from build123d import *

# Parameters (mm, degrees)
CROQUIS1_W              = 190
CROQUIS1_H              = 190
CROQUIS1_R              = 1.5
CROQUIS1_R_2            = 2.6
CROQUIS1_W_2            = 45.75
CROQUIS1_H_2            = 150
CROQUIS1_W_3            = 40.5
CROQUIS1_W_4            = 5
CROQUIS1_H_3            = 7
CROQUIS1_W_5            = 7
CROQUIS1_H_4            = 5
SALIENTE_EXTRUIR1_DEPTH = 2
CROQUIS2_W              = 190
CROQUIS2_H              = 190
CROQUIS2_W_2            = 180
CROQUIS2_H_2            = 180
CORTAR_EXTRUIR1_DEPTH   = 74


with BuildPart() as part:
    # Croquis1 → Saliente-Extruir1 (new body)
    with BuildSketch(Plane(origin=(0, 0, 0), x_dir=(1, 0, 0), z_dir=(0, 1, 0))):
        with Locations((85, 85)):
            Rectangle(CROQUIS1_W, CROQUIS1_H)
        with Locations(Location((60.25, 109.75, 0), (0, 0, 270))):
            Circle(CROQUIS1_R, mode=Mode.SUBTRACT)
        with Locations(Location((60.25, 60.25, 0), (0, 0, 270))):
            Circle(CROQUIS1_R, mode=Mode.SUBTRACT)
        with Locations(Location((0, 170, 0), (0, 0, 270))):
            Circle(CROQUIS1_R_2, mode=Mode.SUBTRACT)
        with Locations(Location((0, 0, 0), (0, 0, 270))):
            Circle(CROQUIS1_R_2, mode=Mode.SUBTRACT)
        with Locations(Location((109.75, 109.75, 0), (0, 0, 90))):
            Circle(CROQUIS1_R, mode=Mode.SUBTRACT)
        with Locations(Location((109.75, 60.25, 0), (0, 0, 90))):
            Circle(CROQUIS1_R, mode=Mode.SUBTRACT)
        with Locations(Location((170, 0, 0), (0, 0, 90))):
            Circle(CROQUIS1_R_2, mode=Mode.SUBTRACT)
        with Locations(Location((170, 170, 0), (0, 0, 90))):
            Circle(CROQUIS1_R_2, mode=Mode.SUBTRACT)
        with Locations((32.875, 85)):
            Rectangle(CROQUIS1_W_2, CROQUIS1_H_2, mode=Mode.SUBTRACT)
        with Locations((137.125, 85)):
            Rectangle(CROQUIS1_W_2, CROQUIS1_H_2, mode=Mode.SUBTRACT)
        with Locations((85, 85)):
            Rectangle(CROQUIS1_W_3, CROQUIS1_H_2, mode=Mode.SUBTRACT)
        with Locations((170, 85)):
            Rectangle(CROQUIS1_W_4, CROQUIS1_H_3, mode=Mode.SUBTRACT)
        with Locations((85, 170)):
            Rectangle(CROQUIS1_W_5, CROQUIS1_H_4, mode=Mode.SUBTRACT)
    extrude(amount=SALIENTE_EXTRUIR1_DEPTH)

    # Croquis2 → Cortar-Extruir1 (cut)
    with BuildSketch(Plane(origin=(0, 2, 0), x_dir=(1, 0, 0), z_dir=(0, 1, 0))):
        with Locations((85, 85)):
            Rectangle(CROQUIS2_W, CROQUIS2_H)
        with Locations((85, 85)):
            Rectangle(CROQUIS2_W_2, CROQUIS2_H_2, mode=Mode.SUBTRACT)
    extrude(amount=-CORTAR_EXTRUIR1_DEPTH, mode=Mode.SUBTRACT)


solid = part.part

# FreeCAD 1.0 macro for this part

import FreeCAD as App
import Part
import Sketcher


def add_polygon(sketch, points):
    """Adds a closed chain of lines whose ends are joined by coincident constraints."""
    first, n = sketch.GeometryCount, len(points)
    for a, b in zip(points, points[1:] + points[:1]):
        sketch.addGeometry(Part.LineSegment(App.Vector(*a, 0), App.Vector(*b, 0)), False)
    for i in range(n):
        sketch.addConstraint(Sketcher.Constraint("Coincident", first + i, 2, first + (i + 1) % n, 1))

doc = App.newDocument("Part")
body = doc.addObject("PartDesign::Body", "Body")

# Sketch on XZ plane
sketch1 = body.newObject("Sketcher::SketchObject", "Sketch")
sketch1.AttachmentSupport = (doc.getObject("XZ_Plane"), [""])
sketch1.MapMode = "FlatFace"
add_polygon(sketch1, [(-10, -180), (-10, 10), (180, 10), (180, -180)])  # lines 0-3
sketch1.addGeometry(Part.Circle(App.Vector(0, 0, 0), App.Vector(0, 0, 1), 2.6), False)  # 4
sketch1.addGeometry(Part.Circle(App.Vector(60.2, -60.2, 0), App.Vector(0, 0, 1), 1.5), False)  # 5
sketch1.addGeometry(Part.Circle(App.Vector(170, 0, 0), App.Vector(0, 0, 1), 2.6), False)  # 6
sketch1.addGeometry(Part.Circle(App.Vector(109.8, -60.2, 0), App.Vector(0, 0, 1), 1.5), False)  # 7
add_polygon(sketch1, [(55.8, -10), (10, -10), (10, -160), (55.8, -160)])  # lines 8-11
sketch1.addGeometry(Part.Circle(App.Vector(60.2, -109.8, 0), App.Vector(0, 0, 1), 1.5), False)  # 12
sketch1.addGeometry(Part.Circle(App.Vector(0, -170, 0), App.Vector(0, 0, 1), 2.6), False)  # 13
add_polygon(sketch1, [(105.2, -10), (64.8, -10), (64.8, -160), (105.2, -160)])  # lines 14-17
sketch1.addGeometry(Part.Circle(App.Vector(109.8, -109.8, 0), App.Vector(0, 0, 1), 1.5), False)  # 18
add_polygon(sketch1, [(160, -10), (114.2, -10), (114.2, -160), (160, -160)])  # lines 19-22
add_polygon(sketch1, [(172.5, -81.5), (167.5, -81.5), (167.5, -88.5), (172.5, -88.5)])  # lines 23-26
add_polygon(sketch1, [(88.5, -167.5), (81.5, -167.5), (81.5, -172.5), (88.5, -172.5)])  # lines 27-30
sketch1.addGeometry(Part.Circle(App.Vector(170, -170, 0), App.Vector(0, 0, 1), 2.6), False)  # 31
sketch1.addConstraint([
    Sketcher.Constraint("Vertical", 0),
    Sketcher.Constraint("Horizontal", 1),
    Sketcher.Constraint("Vertical", 2),
    Sketcher.Constraint("Horizontal", 3),
    Sketcher.Constraint("Horizontal", 8),
    Sketcher.Constraint("Vertical", 9),
    Sketcher.Constraint("Horizontal", 10),
    Sketcher.Constraint("Vertical", 11),
    Sketcher.Constraint("Horizontal", 14),
    Sketcher.Constraint("Vertical", 15),
    Sketcher.Constraint("Horizontal", 16),
    Sketcher.Constraint("Vertical", 17),
    Sketcher.Constraint("Horizontal", 19),
    Sketcher.Constraint("Vertical", 20),
    Sketcher.Constraint("Horizontal", 21),
    Sketcher.Constraint("Vertical", 22),
    Sketcher.Constraint("Horizontal", 23),
    Sketcher.Constraint("Vertical", 24),
    Sketcher.Constraint("Horizontal", 25),
    Sketcher.Constraint("Vertical", 26),
    Sketcher.Constraint("Horizontal", 27),
    Sketcher.Constraint("Vertical", 28),
    Sketcher.Constraint("Horizontal", 29),
    Sketcher.Constraint("Vertical", 30),
    Sketcher.Constraint("Coincident", 4, 3, -1, 1),
    Sketcher.Constraint("Equal", 4, 6),
    Sketcher.Constraint("Equal", 5, 7),
    Sketcher.Constraint("Equal", 7, 12),
    Sketcher.Constraint("Equal", 6, 13),
    Sketcher.Constraint("Equal", 12, 18),
    Sketcher.Constraint("Equal", 13, 31),
    Sketcher.Constraint("Symmetric", 0, 2, 8, 2, -1, 1),
    Sketcher.Constraint("PointOnObject", 6, 3, -1),
    Sketcher.Constraint("PointOnObject", 13, 3, -2),
    Sketcher.Constraint("Horizontal", 5, 3, 7, 3),
    Sketcher.Constraint("Horizontal", 12, 3, 18, 3),
    Sketcher.Constraint("Horizontal", 13, 3, 31, 3),
    Sketcher.Constraint("Horizontal", 11, 2, 14, 2),
    Sketcher.Constraint("Horizontal", 10, 2, 15, 2),
    Sketcher.Constraint("Horizontal", 17, 2, 19, 2),
    Sketcher.Constraint("Horizontal", 16, 2, 20, 2),
    Sketcher.Constraint("Vertical", 5, 3, 12, 3),
    Sketcher.Constraint("Vertical", 7, 3, 18, 3),
    Sketcher.Constraint("Vertical", 6, 3, 31, 3),
    Sketcher.Constraint("Equal", 10, 19),
    Sketcher.Constraint("Equal", 3, 0),
    Sketcher.Constraint("Equal", 29, 24),
    Sketcher.Constraint("Equal", 25, 28),
    Sketcher.Constraint("Diameter", 5, 3.0),
    Sketcher.Constraint("Diameter", 4, 5.2),
    Sketcher.Constraint("DistanceX", 1, 1, 1, 2, 190.0),
    Sketcher.Constraint("DistanceX", 23, 2, 23, 1, 5.0),
    Sketcher.Constraint("DistanceX", 27, 2, 27, 1, 7.0),
    Sketcher.Constraint("DistanceY", 9, 2, 9, 1, 150.0),
    Sketcher.Constraint("DistanceX", 14, 2, 14, 1, 40.5),
    Sketcher.Constraint("DistanceX", -1, 1, 6, 3, 170.0),
    Sketcher.Constraint("DistanceY", 13, 3, -1, 1, 170.0),
    Sketcher.Constraint("DistanceX", 0, 2, -1, 1, 10.0),
    Sketcher.Constraint("DistanceY", -1, 1, 0, 2, 10.0),
    Sketcher.Constraint("DistanceX", -1, 1, 21, 2, 160.0),
    Sketcher.Constraint("DistanceX", 10, 2, 18, 3, 54.0),
    Sketcher.Constraint("DistanceX", 11, 2, 14, 2, 9.0),
    Sketcher.Constraint("DistanceX", 12, 3, 16, 2, 45.0),
    Sketcher.Constraint("DistanceX", 17, 2, 19, 2, 9.0),
    Sketcher.Constraint("DistanceX", -1, 1, 23, 2, 167.5),
    Sketcher.Constraint("DistanceY", 23, 2, -1, 1, 81.5),
    Sketcher.Constraint("DistanceX", -1, 1, 27, 2, 81.5),
    Sketcher.Constraint("DistanceY", 27, 2, -1, 1, 167.5),
    Sketcher.Constraint("DistanceY", 12, 3, 5, 3, 49.5),
    Sketcher.Constraint("DistanceY", 5, 3, -1, 1, 60.25),
])
pad1 = body.newObject("PartDesign::Pad", "Pad")
pad1.Profile = sketch1
pad1.Length = 2
pad1.Reversed = True

# Sketch on XZ plane
sketch2 = body.newObject("Sketcher::SketchObject", "Sketch001")
sketch2.AttachmentSupport = (doc.getObject("XZ_Plane"), [""])
sketch2.MapMode = "FlatFace"
sketch2.AttachmentOffset = App.Placement(App.Vector(0, 0, -2), App.Rotation())
add_polygon(sketch2, [(-10, -180), (-10, 10), (180, 10), (180, -180)])  # lines 0-3
add_polygon(sketch2, [(175, 5), (-5, 5), (-5, -175), (175, -175)])  # lines 4-7
sketch2.addConstraint([
    Sketcher.Constraint("Vertical", 0),
    Sketcher.Constraint("Horizontal", 1),
    Sketcher.Constraint("Vertical", 2),
    Sketcher.Constraint("Horizontal", 3),
    Sketcher.Constraint("Horizontal", 4),
    Sketcher.Constraint("Vertical", 5),
    Sketcher.Constraint("Horizontal", 6),
    Sketcher.Constraint("Vertical", 7),
    Sketcher.Constraint("Equal", 3, 0),
    Sketcher.Constraint("Equal", 6, 5),
    Sketcher.Constraint("DistanceX", 1, 1, 1, 2, 190.0),
    Sketcher.Constraint("DistanceX", 4, 2, 4, 1, 180.0),
    Sketcher.Constraint("DistanceX", 0, 2, -1, 1, 10.0),
    Sketcher.Constraint("DistanceY", -1, 1, 0, 2, 10.0),
    Sketcher.Constraint("DistanceX", 4, 2, -1, 1, 5.0),
    Sketcher.Constraint("DistanceY", -1, 1, 4, 2, 5.0),
])
pocket1 = body.newObject("PartDesign::Pocket", "Pocket")
pocket1.Profile = sketch2
pocket1.Length = 74
pocket1.Reversed = True

doc.recompute()
